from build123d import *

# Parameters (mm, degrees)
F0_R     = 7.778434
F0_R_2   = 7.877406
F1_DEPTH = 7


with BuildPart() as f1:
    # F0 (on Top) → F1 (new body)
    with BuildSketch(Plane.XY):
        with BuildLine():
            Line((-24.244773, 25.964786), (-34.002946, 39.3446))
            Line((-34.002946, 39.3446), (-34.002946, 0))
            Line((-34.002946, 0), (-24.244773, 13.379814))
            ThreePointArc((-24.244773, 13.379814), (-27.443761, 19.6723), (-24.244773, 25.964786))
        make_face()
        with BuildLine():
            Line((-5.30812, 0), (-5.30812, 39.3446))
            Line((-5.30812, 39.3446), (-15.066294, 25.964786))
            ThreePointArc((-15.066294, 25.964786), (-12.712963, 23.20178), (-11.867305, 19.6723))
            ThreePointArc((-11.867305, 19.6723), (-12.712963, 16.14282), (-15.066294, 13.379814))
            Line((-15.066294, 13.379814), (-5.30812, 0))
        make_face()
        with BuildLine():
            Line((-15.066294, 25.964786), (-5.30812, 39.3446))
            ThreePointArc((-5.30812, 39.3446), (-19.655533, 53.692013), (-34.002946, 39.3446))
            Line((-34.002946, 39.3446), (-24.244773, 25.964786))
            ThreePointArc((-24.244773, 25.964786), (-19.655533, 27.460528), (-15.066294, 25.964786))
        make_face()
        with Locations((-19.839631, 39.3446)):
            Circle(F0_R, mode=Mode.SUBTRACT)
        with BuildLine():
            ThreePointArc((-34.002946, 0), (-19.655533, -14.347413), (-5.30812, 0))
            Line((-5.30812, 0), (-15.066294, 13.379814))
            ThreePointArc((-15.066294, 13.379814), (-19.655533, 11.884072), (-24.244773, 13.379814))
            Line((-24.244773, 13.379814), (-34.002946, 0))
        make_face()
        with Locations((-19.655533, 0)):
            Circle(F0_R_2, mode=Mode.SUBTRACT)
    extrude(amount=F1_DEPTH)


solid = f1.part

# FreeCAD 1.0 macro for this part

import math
import FreeCAD as App
import Part
import Sketcher

V = App.Vector

doc = App.newDocument("Part")
body = doc.addObject("PartDesign::Body", "Body")

# Sketch on XY plane
sketch1 = doc.addObject("Sketcher::SketchObject", "Sketch")
body.addObject(sketch1)
sketch1.AttachmentSupport = (doc.XY_Plane, [""])
sketch1.MapMode = "FlatFace"
sketch1.addGeometry([
    Part.LineSegment(V(-34.002946, 39.3446, 0), V(-34.002946, 0, 0)),  # 0
    Part.ArcOfCircle(Part.Circle(V(-19.655533, 0, 0), V(0, 0, 1), 14.347413), math.radians(180), math.radians(360)),  # 1
    Part.LineSegment(V(-5.30812, 0, 0), V(-5.30812, 39.3446, 0)),  # 2
    Part.ArcOfCircle(Part.Circle(V(-19.655533, 39.3446, 0), V(0, 0, 1), 14.347413), math.radians(0), math.radians(180)),  # 3
    Part.Circle(V(-19.655533, 0, 0), V(0, 0, 1), 7.877406),  # 4
    Part.Circle(V(-19.839631, 39.3446, 0), V(0, 0, 1), 7.778434),  # 5
    Part.ArcOfCircle(Part.Circle(V(-19.655532, 19.6723, 0), V(0, 0, 1), 7.788229), math.radians(126.104052), math.radians(233.895948)),  # 6
    Part.ArcOfCircle(Part.Circle(V(-19.655534, 19.672299, 0), V(0, 0, 1), 7.788229), math.radians(53.895965), math.radians(126.104035)),  # 7
    Part.ArcOfCircle(Part.Circle(V(-19.655527, 19.672303, 0), V(0, 0, 1), 7.788222), math.radians(-0.000024), math.radians(53.895987)),  # 8
    Part.ArcOfCircle(Part.Circle(V(-19.655527, 19.672297, 0), V(0, 0, 1), 7.788222), math.radians(-53.895987), math.radians(0.000024)),  # 9
    Part.ArcOfCircle(Part.Circle(V(-19.655534, 19.672301, 0), V(0, 0, 1), 7.788229), math.radians(-126.104035), math.radians(-53.895965)),  # 10
], False)
sketch1.addConstraint([
    Sketcher.Constraint("Tangent", 0, 2, 1, 1),
    Sketcher.Constraint("Tangent", 1, 2, 2, 1),
    Sketcher.Constraint("Tangent", 2, 2, 3, 1),
    Sketcher.Constraint("Tangent", 3, 2, 0, 1),
    Sketcher.Constraint("Tangent", 6, 1, 7, 2),
    Sketcher.Constraint("Tangent", 7, 1, 8, 2),
    Sketcher.Constraint("Tangent", 8, 1, 9, 2),
    Sketcher.Constraint("Tangent", 9, 1, 10, 2),
    Sketcher.Constraint("Tangent", 10, 1, 6, 2),
    Sketcher.Constraint("Vertical", 0),
    Sketcher.Constraint("Vertical", 2),
    Sketcher.Constraint("Coincident", 4, 3, 1, 3),
    Sketcher.Constraint("Coincident", 8, 3, 6, 3),
    Sketcher.Constraint("PointOnObject", 1, 3, -1),
    Sketcher.Constraint("Horizontal", 3, 3, 5, 3),
    Sketcher.Constraint("Horizontal", 6, 1, 7, 1),
    Sketcher.Constraint("Horizontal", 10, 3, 8, 1),
    Sketcher.Constraint("Horizontal", 9, 1, 10, 1),
    Sketcher.Constraint("Vertical", 4, 3, 6, 3),
    Sketcher.Constraint("Vertical", 7, 1, 9, 1),
    Sketcher.Constraint("Diameter", 4, 15.754812),
    Sketcher.Constraint("Radius", 6, 7.788229),
    Sketcher.Constraint("Diameter", 5, 15.556868),
    Sketcher.Constraint("DistanceY", 0, 2, 0, 1, 39.3446),
    Sketcher.Constraint("Radius", 1, 14.347413),
    Sketcher.Constraint("DistanceY", -1, 1, 6, 3, 19.6723),
    Sketcher.Constraint("DistanceX", 5, 3, 3, 3, 0.184098),
    Sketcher.Constraint("DistanceX", 5, 3, -1, 1, 19.839631),
    Sketcher.Constraint("DistanceX", 6, 1, 10, 3, 4.58924),
])
pad1 = doc.addObject("PartDesign::Pad", "Pad")
body.addObject(pad1)
pad1.Profile = sketch1
pad1.Length = 7

doc.recompute()
